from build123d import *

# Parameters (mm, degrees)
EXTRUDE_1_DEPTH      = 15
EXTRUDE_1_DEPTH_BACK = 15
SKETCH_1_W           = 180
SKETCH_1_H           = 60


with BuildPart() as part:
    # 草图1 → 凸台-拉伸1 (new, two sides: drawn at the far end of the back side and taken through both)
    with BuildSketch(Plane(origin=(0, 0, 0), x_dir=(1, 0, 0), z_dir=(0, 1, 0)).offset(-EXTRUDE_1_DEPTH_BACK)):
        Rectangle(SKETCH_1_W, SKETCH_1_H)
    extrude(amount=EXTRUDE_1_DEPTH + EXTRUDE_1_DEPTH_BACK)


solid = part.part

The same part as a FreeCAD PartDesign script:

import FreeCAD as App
import Part
import Sketcher
from FreeCAD import Vector
Q = App.Units.Quantity

doc = App.newDocument("Part")
body = doc.addObject("PartDesign::Body", "Body")

sketch1 = body.newObject("Sketcher::SketchObject", "Sketch")
sketch1.AttachmentSupport = (doc.getObject("XZ_Plane"), [""])
sketch1.MapMode = "FlatFace"
sketch1.addGeometry([
    Part.LineSegment(Vector(-90, -30, 0), Vector(-90, 30, 0)),
    Part.LineSegment(Vector(-90, 30, 0), Vector(90, 30, 0)),
    Part.LineSegment(Vector(90, 30, 0), Vector(90, -30, 0)),
    Part.LineSegment(Vector(90, -30, 0), Vector(-90, -30, 0)),
], False)
sketch1.addConstraint([
    Sketcher.Constraint("Coincident", 0, 2, 1, 1),
    Sketcher.Constraint("Coincident", 1, 2, 2, 1),
    Sketcher.Constraint("Coincident", 2, 2, 3, 1),
    Sketcher.Constraint("Coincident", 3, 2, 0, 1),
    Sketcher.Constraint("Vertical", 0),
    Sketcher.Constraint("Horizontal", 1),
    Sketcher.Constraint("Vertical", 2),
    Sketcher.Constraint("Horizontal", 3),
    Sketcher.Constraint("Symmetric", 0, 2, 2, 2, -1, 1),
    Sketcher.Constraint("DistanceX", 1, 1, 1, 2, Q("180 mm")),
    Sketcher.Constraint("DistanceY", 0, 1, 0, 2, Q("60 mm")),
])
pad1 = body.newObject("PartDesign::Pad", "Pad")
pad1.Profile = sketch1
pad1.Type = "TwoLengths"
pad1.Length = 15
pad1.Length2 = 15
pad1.Reversed = True

doc.recompute()
